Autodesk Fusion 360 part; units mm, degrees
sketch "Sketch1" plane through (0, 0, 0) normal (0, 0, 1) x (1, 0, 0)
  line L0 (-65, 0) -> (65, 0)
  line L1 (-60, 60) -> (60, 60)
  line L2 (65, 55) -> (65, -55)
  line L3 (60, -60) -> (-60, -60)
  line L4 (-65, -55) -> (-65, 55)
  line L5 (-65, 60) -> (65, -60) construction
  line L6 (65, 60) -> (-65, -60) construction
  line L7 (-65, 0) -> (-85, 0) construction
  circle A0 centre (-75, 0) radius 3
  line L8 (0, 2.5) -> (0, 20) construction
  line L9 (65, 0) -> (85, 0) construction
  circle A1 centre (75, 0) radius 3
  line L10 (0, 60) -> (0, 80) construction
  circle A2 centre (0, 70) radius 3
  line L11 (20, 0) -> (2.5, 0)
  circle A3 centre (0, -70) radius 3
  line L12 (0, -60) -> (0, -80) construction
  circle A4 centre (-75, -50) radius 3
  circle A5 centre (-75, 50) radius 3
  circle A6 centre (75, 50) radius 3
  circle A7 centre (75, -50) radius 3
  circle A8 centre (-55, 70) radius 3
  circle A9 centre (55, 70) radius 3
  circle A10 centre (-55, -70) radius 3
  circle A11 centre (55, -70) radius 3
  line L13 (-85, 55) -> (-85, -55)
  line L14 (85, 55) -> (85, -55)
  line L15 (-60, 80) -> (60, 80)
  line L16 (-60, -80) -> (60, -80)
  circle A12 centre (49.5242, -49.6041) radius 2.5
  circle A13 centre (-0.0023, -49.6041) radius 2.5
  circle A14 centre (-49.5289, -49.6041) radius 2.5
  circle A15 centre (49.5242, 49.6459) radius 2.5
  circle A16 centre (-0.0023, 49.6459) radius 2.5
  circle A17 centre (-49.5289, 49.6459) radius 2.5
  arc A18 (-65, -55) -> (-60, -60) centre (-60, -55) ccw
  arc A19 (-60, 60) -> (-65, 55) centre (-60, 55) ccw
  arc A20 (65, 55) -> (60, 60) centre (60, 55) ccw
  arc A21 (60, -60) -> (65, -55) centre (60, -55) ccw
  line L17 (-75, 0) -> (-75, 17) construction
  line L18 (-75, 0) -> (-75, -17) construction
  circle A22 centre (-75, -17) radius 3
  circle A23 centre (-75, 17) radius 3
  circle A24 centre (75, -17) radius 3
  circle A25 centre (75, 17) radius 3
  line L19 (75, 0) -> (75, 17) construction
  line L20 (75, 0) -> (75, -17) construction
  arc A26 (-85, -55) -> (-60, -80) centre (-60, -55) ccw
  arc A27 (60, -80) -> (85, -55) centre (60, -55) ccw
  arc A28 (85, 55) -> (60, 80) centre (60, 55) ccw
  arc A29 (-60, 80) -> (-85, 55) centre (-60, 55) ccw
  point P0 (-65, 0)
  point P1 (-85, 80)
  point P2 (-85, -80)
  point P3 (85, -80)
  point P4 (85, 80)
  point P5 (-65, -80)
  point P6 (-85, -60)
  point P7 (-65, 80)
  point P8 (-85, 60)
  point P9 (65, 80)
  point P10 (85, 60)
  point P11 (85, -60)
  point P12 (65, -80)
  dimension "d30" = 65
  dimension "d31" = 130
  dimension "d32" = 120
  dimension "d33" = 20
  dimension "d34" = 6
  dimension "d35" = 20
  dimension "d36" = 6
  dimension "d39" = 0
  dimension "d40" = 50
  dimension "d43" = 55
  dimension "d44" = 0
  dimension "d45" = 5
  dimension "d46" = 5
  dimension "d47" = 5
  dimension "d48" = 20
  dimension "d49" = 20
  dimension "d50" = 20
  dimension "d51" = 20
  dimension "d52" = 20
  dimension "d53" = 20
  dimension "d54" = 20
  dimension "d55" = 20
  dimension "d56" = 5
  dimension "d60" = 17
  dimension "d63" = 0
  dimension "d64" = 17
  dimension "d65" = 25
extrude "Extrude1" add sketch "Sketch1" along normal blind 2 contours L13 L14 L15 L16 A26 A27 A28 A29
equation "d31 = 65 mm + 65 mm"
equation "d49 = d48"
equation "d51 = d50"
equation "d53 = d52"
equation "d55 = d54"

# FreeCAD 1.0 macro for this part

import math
import FreeCAD as App
import Part
import Sketcher

V = App.Vector
Q = App.Units.Quantity

doc = App.newDocument("Part")
body = doc.addObject("PartDesign::Body", "Body")

# Sketch on XY plane
sketch1 = body.newObject("Sketcher::SketchObject", "Sketch")
sketch1.AttachmentSupport = (doc.getObject("XY_Plane"), [""])
sketch1.MapMode = "FlatFace"
sketch1.addGeometry(Part.ArcOfCircle(Part.Circle(V(-60, 55, 0), V(0, 0, 1), 25), math.radians(90), math.radians(180)), False)
sketch1.addGeometry(Part.LineSegment(V(-85, 55, 0), V(-85, -55, 0)), False)
sketch1.addGeometry(Part.ArcOfCircle(Part.Circle(V(-60, -55, 0), V(0, 0, 1), 25), math.radians(180), math.radians(270)), False)
sketch1.addGeometry(Part.LineSegment(V(-60, -80, 0), V(60, -80, 0)), False)
sketch1.addGeometry(Part.ArcOfCircle(Part.Circle(V(60, -55, 0), V(0, 0, 1), 25), math.radians(-90), math.radians(0)), False)
sketch1.addGeometry(Part.LineSegment(V(85, -55, 0), V(85, 55, 0)), False)
sketch1.addGeometry(Part.ArcOfCircle(Part.Circle(V(60, 55, 0), V(0, 0, 1), 25), math.radians(0), math.radians(90)), False)
sketch1.addGeometry(Part.LineSegment(V(60, 80, 0), V(-60, 80, 0)), False)
sketch1.addGeometry(Part.Circle(V(-55, -70, 0), V(0, 0, 1), 3), False)
sketch1.addGeometry(Part.Circle(V(-75, -50, 0), V(0, 0, 1), 3), False)
sketch1.addGeometry(Part.Circle(V(-75, -17, 0), V(0, 0, 1), 3), False)
sketch1.addGeometry(Part.Circle(V(0, -70, 0), V(0, 0, 1), 3), False)
sketch1.addGeometry(Part.Circle(V(55, -70, 0), V(0, 0, 1), 3), False)
sketch1.addGeometry(Part.Circle(V(75, -50, 0), V(0, 0, 1), 3), False)
sketch1.addGeometry(Part.Circle(V(75, -17, 0), V(0, 0, 1), 3), False)
sketch1.addGeometry(Part.Circle(V(-75, 0, 0), V(0, 0, 1), 3), False)
sketch1.addGeometry(Part.Circle(V(-75, 17, 0), V(0, 0, 1), 3), False)
sketch1.addGeometry(Part.Circle(V(-75, 50, 0), V(0, 0, 1), 3), False)
sketch1.addGeometry(Part.Circle(V(-55, 70, 0), V(0, 0, 1), 3), False)
sketch1.addGeometry(Part.LineSegment(V(-65, -55, 0), V(-65, 55, 0)), False)
sketch1.addGeometry(Part.ArcOfCircle(Part.Circle(V(-60, 55, 0), V(0, 0, 1), 5), math.radians(90), math.radians(180)), False)
sketch1.addGeometry(Part.LineSegment(V(-60, 60, 0), V(60, 60, 0)), False)
sketch1.addGeometry(Part.ArcOfCircle(Part.Circle(V(60, 55, 0), V(0, 0, 1), 5), math.radians(0), math.radians(90)), False)
sketch1.addGeometry(Part.LineSegment(V(65, 55, 0), V(65, -55, 0)), False)
sketch1.addGeometry(Part.ArcOfCircle(Part.Circle(V(60, -55, 0), V(0, 0, 1), 5), math.radians(-90), math.radians(0)), False)
sketch1.addGeometry(Part.LineSegment(V(60, -60, 0), V(-60, -60, 0)), False)
sketch1.addGeometry(Part.ArcOfCircle(Part.Circle(V(-60, -55, 0), V(0, 0, 1), 5), math.radians(180), math.radians(270)), False)
sketch1.addGeometry(Part.Circle(V(75, 0, 0), V(0, 0, 1), 3), False)
sketch1.addGeometry(Part.Circle(V(75, 17, 0), V(0, 0, 1), 3), False)
sketch1.addGeometry(Part.Circle(V(0, 70, 0), V(0, 0, 1), 3), False)
sketch1.addGeometry(Part.Circle(V(75, 50, 0), V(0, 0, 1), 3), False)
sketch1.addGeometry(Part.Circle(V(55, 70, 0), V(0, 0, 1), 3), False)
sketch1.addConstraint(Sketcher.Constraint("Tangent", 0, 2, 1, 1))
sketch1.addConstraint(Sketcher.Constraint("Tangent", 1, 2, 2, 1))
sketch1.addConstraint(Sketcher.Constraint("Tangent", 2, 2, 3, 1))
sketch1.addConstraint(Sketcher.Constraint("Tangent", 3, 2, 4, 1))
sketch1.addConstraint(Sketcher.Constraint("Tangent", 4, 2, 5, 1))
sketch1.addConstraint(Sketcher.Constraint("Tangent", 5, 2, 6, 1))
sketch1.addConstraint(Sketcher.Constraint("Tangent", 6, 2, 7, 1))
sketch1.addConstraint(Sketcher.Constraint("Tangent", 7, 2, 0, 1))
sketch1.addConstraint(Sketcher.Constraint("Tangent", 19, 2, 20, 2))
sketch1.addConstraint(Sketcher.Constraint("Tangent", 20, 1, 21, 1))
sketch1.addConstraint(Sketcher.Constraint("Tangent", 21, 2, 22, 2))
sketch1.addConstraint(Sketcher.Constraint("Tangent", 22, 1, 23, 1))
sketch1.addConstraint(Sketcher.Constraint("Tangent", 23, 2, 24, 2))
sketch1.addConstraint(Sketcher.Constraint("Tangent", 24, 1, 25, 1))
sketch1.addConstraint(Sketcher.Constraint("Tangent", 25, 2, 26, 2))
sketch1.addConstraint(Sketcher.Constraint("Tangent", 26, 1, 19, 1))
sketch1.addConstraint(Sketcher.Constraint("Vertical", 1))
sketch1.addConstraint(Sketcher.Constraint("Horizontal", 3))
sketch1.addConstraint(Sketcher.Constraint("Vertical", 5))
sketch1.addConstraint(Sketcher.Constraint("Horizontal", 7))
sketch1.addConstraint(Sketcher.Constraint("Vertical", 19))
sketch1.addConstraint(Sketcher.Constraint("Horizontal", 21))
sketch1.addConstraint(Sketcher.Constraint("Vertical", 23))
sketch1.addConstraint(Sketcher.Constraint("Horizontal", 25))
sketch1.addConstraint(Sketcher.Constraint("Coincident", 20, 3, 0, 3))
sketch1.addConstraint(Sketcher.Constraint("Coincident", 22, 3, 6, 3))
sketch1.addConstraint(Sketcher.Constraint("Coincident", 24, 3, 4, 3))
sketch1.addConstraint(Sketcher.Constraint("Equal", 0, 2))
sketch1.addConstraint(Sketcher.Constraint("Equal", 2, 4))
sketch1.addConstraint(Sketcher.Constraint("Equal", 4, 6))
sketch1.addConstraint(Sketcher.Constraint("Equal", 8, 9))
sketch1.addConstraint(Sketcher.Constraint("Equal", 9, 10))
sketch1.addConstraint(Sketcher.Constraint("Equal", 10, 11))
sketch1.addConstraint(Sketcher.Constraint("Equal", 11, 12))
sketch1.addConstraint(Sketcher.Constraint("Equal", 12, 13))
sketch1.addConstraint(Sketcher.Constraint("Equal", 13, 14))
sketch1.addConstraint(Sketcher.Constraint("Equal", 14, 15))
sketch1.addConstraint(Sketcher.Constraint("Equal", 15, 16))
sketch1.addConstraint(Sketcher.Constraint("Equal", 16, 17))
sketch1.addConstraint(Sketcher.Constraint("Equal", 17, 18))
sketch1.addConstraint(Sketcher.Constraint("Equal", 24, 26))
sketch1.addConstraint(Sketcher.Constraint("Equal", 18, 27))
sketch1.addConstraint(Sketcher.Constraint("Equal", 27, 28))
sketch1.addConstraint(Sketcher.Constraint("Equal", 28, 29))
sketch1.addConstraint(Sketcher.Constraint("Equal", 29, 30))
sketch1.addConstraint(Sketcher.Constraint("Equal", 30, 31))
sketch1.addConstraint(Sketcher.Constraint("Symmetric", 0, 3, 4, 3, -1, 1))
sketch1.addConstraint(Sketcher.Constraint("Symmetric", 14, 3, 16, 3, -1, 1))
sketch1.addConstraint(Sketcher.Constraint("Symmetric", 13, 3, 17, 3, -1, 1))
sketch1.addConstraint(Sketcher.Constraint("Symmetric", 12, 3, 18, 3, -1, 1))
sketch1.addConstraint(Sketcher.Constraint("Symmetric", 15, 3, 27, 3, -1, 1))
sketch1.addConstraint(Sketcher.Constraint("Symmetric", 10, 3, 28, 3, -1, 1))
sketch1.addConstraint(Sketcher.Constraint("Symmetric", 11, 3, 29, 3, -1, 1))
sketch1.addConstraint(Sketcher.Constraint("Symmetric", 9, 3, 30, 3, -1, 1))
sketch1.addConstraint(Sketcher.Constraint("Symmetric", 8, 3, 31, 3, -1, 1))
sketch1.addConstraint(Sketcher.Constraint("Symmetric", 8, 3, 12, 3, -2))
sketch1.addConstraint(Sketcher.Constraint("Symmetric", 9, 3, 13, 3, -2))
sketch1.addConstraint(Sketcher.Constraint("Symmetric", 10, 3, 14, 3, -2))
sketch1.addConstraint(Sketcher.Constraint("PointOnObject", 11, 3, -2))
sketch1.addConstraint(Sketcher.Constraint("PointOnObject", 15, 3, -1))
sketch1.addConstraint(Sketcher.Constraint("Horizontal", 8, 3, 11, 3))
sketch1.addConstraint(Sketcher.Constraint("Vertical", 9, 3, 10, 3))
sketch1.addConstraint(Sketcher.Constraint("Vertical", 10, 3, 15, 3))
sketch1.addConstraint(Sketcher.Constraint("Diameter", 8, Q("6 mm")))
sketch1.addConstraint(Sketcher.Constraint("Radius", 0, Q("25 mm")))
sketch1.addConstraint(Sketcher.Constraint("Radius", 20, Q("5 mm")))
sketch1.addConstraint(Sketcher.Constraint("DistanceX", 3, 1, 3, 2, Q("120 mm")))
sketch1.addConstraint(Sketcher.Constraint("DistanceY", -1, 1, 0, 3, Q("55 mm")))
sketch1.addConstraint(Sketcher.Constraint("DistanceX", 8, 3, -1, 1, Q("55 mm")))
sketch1.addConstraint(Sketcher.Constraint("DistanceY", 9, 3, -1, 1, Q("50 mm")))
sketch1.addConstraint(Sketcher.Constraint("DistanceY", 10, 3, -1, 1, Q("17 mm")))
sketch1.addConstraint(Sketcher.Constraint("DistanceX", 9, 3, 8, 3, Q("20 mm")))
sketch1.addConstraint(Sketcher.Constraint("DistanceY", 8, 3, 9, 3, Q("20 mm")))
pad1 = body.newObject("PartDesign::Pad", "Pad")
pad1.Profile = sketch1
pad1.Length = 2

doc.recompute()
